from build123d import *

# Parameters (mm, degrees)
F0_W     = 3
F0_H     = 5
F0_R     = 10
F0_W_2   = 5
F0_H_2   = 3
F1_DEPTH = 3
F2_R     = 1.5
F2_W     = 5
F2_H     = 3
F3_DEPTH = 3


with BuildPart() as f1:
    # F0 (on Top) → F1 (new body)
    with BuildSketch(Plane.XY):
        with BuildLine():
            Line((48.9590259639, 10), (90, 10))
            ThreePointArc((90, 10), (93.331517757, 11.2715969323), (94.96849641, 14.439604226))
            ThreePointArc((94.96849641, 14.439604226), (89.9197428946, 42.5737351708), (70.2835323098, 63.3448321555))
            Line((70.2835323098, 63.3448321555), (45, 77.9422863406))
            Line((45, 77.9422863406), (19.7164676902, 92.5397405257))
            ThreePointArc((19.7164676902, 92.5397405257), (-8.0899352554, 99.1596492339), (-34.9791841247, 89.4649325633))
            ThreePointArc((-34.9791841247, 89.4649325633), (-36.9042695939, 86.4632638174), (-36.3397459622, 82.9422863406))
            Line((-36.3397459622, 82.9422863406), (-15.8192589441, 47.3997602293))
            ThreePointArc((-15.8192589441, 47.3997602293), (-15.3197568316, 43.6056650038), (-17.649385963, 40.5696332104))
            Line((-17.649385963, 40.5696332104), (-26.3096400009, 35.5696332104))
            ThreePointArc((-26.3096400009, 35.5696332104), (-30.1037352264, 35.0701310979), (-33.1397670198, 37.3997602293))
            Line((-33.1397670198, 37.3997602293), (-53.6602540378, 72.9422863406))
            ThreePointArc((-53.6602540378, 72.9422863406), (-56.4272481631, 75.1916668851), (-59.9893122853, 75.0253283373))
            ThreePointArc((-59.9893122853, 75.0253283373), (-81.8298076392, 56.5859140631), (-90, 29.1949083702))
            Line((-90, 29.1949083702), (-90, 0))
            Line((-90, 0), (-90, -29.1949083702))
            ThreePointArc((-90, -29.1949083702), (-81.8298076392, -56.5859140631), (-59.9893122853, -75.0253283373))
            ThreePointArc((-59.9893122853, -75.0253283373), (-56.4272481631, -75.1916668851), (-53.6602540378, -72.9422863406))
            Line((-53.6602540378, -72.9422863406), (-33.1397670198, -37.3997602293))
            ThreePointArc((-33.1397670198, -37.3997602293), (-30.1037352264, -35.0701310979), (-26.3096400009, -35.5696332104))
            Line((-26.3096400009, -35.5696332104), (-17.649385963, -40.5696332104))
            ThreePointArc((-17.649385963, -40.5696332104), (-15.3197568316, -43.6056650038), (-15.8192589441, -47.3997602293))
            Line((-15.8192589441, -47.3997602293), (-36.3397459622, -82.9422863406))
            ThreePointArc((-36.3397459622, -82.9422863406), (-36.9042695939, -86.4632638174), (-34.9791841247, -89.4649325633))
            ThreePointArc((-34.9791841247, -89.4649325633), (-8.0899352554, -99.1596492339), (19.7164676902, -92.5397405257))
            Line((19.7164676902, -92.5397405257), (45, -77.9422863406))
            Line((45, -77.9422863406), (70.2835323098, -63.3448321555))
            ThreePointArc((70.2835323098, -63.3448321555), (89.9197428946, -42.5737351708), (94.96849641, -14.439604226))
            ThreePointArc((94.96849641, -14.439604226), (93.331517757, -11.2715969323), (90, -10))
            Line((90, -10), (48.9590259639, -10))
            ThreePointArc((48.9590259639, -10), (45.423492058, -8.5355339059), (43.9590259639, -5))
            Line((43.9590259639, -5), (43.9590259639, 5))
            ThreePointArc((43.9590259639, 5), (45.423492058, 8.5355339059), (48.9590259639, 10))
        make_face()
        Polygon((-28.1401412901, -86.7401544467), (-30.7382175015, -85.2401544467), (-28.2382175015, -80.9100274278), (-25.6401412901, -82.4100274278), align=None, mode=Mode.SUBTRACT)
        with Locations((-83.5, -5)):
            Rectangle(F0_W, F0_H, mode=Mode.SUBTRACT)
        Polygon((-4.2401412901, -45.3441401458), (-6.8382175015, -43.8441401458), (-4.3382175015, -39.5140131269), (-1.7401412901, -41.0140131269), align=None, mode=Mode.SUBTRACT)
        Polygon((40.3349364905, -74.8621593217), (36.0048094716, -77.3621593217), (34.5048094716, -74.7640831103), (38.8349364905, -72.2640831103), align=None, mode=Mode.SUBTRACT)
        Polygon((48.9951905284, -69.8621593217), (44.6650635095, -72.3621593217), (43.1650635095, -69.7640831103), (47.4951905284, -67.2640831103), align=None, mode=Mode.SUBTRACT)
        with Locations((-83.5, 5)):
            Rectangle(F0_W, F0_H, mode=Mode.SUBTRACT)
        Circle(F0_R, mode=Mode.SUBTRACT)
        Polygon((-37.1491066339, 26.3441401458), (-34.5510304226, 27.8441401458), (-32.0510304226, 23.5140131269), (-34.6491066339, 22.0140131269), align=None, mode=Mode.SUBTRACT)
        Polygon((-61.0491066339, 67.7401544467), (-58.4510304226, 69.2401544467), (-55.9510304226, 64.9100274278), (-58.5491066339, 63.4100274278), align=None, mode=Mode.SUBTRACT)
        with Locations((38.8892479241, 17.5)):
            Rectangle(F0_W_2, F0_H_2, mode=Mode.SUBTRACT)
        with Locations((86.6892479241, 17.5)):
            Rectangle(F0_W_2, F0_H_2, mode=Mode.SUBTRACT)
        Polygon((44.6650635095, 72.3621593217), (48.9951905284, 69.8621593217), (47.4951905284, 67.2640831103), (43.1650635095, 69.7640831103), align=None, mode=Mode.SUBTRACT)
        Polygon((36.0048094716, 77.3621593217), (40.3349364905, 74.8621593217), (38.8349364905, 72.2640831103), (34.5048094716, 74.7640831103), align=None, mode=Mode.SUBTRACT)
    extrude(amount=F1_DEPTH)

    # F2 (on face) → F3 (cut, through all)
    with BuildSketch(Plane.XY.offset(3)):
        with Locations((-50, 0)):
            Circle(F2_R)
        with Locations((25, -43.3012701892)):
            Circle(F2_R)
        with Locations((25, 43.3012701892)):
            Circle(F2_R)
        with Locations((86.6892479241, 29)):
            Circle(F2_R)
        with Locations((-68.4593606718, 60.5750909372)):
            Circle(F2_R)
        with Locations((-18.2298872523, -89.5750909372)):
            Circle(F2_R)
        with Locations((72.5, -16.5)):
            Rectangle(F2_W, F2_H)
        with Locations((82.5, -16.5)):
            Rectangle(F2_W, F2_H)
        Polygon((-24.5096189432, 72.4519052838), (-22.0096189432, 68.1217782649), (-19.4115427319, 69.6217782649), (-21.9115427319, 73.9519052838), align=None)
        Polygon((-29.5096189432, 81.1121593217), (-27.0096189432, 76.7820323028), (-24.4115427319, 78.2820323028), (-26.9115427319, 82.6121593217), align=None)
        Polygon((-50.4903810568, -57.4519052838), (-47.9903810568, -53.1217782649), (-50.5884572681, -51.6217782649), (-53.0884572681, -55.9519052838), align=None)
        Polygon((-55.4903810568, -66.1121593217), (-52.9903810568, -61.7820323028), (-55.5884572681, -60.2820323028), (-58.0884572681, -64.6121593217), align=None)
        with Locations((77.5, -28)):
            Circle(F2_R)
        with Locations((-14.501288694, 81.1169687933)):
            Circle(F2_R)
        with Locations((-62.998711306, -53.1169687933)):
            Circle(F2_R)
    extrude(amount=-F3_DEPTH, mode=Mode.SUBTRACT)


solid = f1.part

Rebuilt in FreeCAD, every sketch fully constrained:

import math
import FreeCAD as App
import Part
import Sketcher

V = App.Vector
Q = App.Units.Quantity

doc = App.newDocument("Part")
params = doc.addObject("Spreadsheet::Sheet", "Params")
for row, (alias, value) in enumerate([
    ("sketch1_diameter", "20 mm"),
    ("sketch1_radius", "5 mm"),
    ("sketch1_radius2", "50 mm"),
    ("sketch1_width", "3 mm"),
    ("sketch1_width2", "5 mm"),
    ("pad1_length", "3 mm"),
    ("sketch2_diameter", "3 mm"),
    ("sketch2_width", "5 mm"),
    ("sketch2_height", "3 mm"),
    ("sketch2_length", "5 mm"),
    ("sketch2_length2", "3 mm"),
], start=1):
    params.set(f"A{row}", alias)
    params.set(f"B{row}", "=" + value)
    params.setAlias(f"B{row}", alias)

body = doc.addObject("PartDesign::Body", "Body")

# Sketch on XY plane
sketch1 = body.newObject("Sketcher::SketchObject", "Sketch")
sketch1.AttachmentSupport = (doc.getObject("XY_Plane"), [""])
sketch1.MapMode = "FlatFace"
sketch1.addGeometry([
    Part.LineSegment(V(49, 10, 0), V(90, 10, 0)),  # 0
    Part.ArcOfCircle(Part.Circle(V(90, 15, 0), V(0, 0, 1), 5), math.radians(-90), math.radians(-6)),  # 1
    Part.ArcOfCircle(Part.Circle(V(45.3, 20, 0), V(0, 0, 1), 50), math.radians(-6), math.radians(60)),  # 2
    Part.LineSegment(V(70.3, 63.3, 0), V(19.7, 92.5, 0)),  # 3
    Part.ArcOfCircle(Part.Circle(V(-5.3, 49.2, 0), V(0, 0, 1), 50), math.radians(60), math.radians(126)),  # 4
    Part.ArcOfCircle(Part.Circle(V(-32, 85.4, 0), V(0, 0, 1), 5), math.radians(126), math.radians(210)),  # 5
    Part.LineSegment(V(-36.3, 82.9, 0), V(-15.8, 47.4, 0)),  # 6
    Part.ArcOfCircle(Part.Circle(V(-20.1, 44.9, 0), V(0, 0, 1), 5), math.radians(-60), math.radians(30)),  # 7
    Part.LineSegment(V(-17.6, 40.6, 0), V(-26.3, 35.6, 0)),  # 8
    Part.ArcOfCircle(Part.Circle(V(-28.8, 39.9, 0), V(0, 0, 1), 5), math.radians(-150), math.radians(-60)),  # 9
    Part.LineSegment(V(-33.1, 37.4, 0), V(-53.7, 72.9, 0)),  # 10
    Part.ArcOfCircle(Part.Circle(V(-58, 70.4, 0), V(0, 0, 1), 5), math.radians(30), math.radians(114)),  # 11
    Part.ArcOfCircle(Part.Circle(V(-40, 29.2, 0), V(0, 0, 1), 50), math.radians(114), math.radians(180)),  # 12
    Part.LineSegment(V(-90, 29.2, 0), V(-90, -29.2, 0)),  # 13
    Part.ArcOfCircle(Part.Circle(V(-40, -29.2, 0), V(0, 0, 1), 50), math.radians(180), math.radians(246)),  # 14
    Part.ArcOfCircle(Part.Circle(V(-58, -70.4, 0), V(0, 0, 1), 5), math.radians(-114), math.radians(-30)),  # 15
    Part.LineSegment(V(-53.7, -72.9, 0), V(-33.1, -37.4, 0)),  # 16
    Part.ArcOfCircle(Part.Circle(V(-28.8, -39.9, 0), V(0, 0, 1), 5), math.radians(60), math.radians(150)),  # 17
    Part.LineSegment(V(-26.3, -35.6, 0), V(-17.6, -40.6, 0)),  # 18
    Part.ArcOfCircle(Part.Circle(V(-20.1, -44.9, 0), V(0, 0, 1), 5), math.radians(-30), math.radians(60)),  # 19
    Part.LineSegment(V(-15.8, -47.4, 0), V(-36.3, -82.9, 0)),  # 20
    Part.ArcOfCircle(Part.Circle(V(-32, -85.4, 0), V(0, 0, 1), 5), math.radians(150), math.radians(234)),  # 21
    Part.ArcOfCircle(Part.Circle(V(-5.3, -49.2, 0), V(0, 0, 1), 50), math.radians(-126), math.radians(-60)),  # 22
    Part.LineSegment(V(19.7, -92.5, 0), V(70.3, -63.3, 0)),  # 23
    Part.ArcOfCircle(Part.Circle(V(45.3, -20, 0), V(0, 0, 1), 50), math.radians(-60), math.radians(6)),  # 24
    Part.ArcOfCircle(Part.Circle(V(90, -15, 0), V(0, 0, 1), 5), math.radians(6), math.radians(90)),  # 25
    Part.LineSegment(V(90, -10, 0), V(49, -10, 0)),  # 26
    Part.ArcOfCircle(Part.Circle(V(49, -5, 0), V(0, 0, 1), 5), math.radians(180), math.radians(270)),  # 27
    Part.LineSegment(V(44, -5, 0), V(44, 5, 0)),  # 28
    Part.ArcOfCircle(Part.Circle(V(49, 5, 0), V(0, 0, 1), 5), math.radians(90), math.radians(180)),  # 29
    Part.LineSegment(V(-25.6, -82.4, 0), V(-28.1, -86.7, 0)),  # 30
    Part.LineSegment(V(-28.1, -86.7, 0), V(-30.7, -85.2, 0)),  # 31
    Part.LineSegment(V(-30.7, -85.2, 0), V(-28.2, -80.9, 0)),  # 32
    Part.LineSegment(V(-28.2, -80.9, 0), V(-25.6, -82.4, 0)),  # 33
    Part.LineSegment(V(-82, -7.5, 0), V(-85, -7.5, 0)),  # 34
    Part.LineSegment(V(-85, -7.5, 0), V(-85, -2.5, 0)),  # 35
    Part.LineSegment(V(-85, -2.5, 0), V(-82, -2.5, 0)),  # 36
    Part.LineSegment(V(-82, -2.5, 0), V(-82, -7.5, 0)),  # 37
    Part.LineSegment(V(-1.7, -41, 0), V(-4.2, -45.3, 0)),  # 38
    Part.LineSegment(V(-4.2, -45.3, 0), V(-6.8, -43.8, 0)),  # 39
    Part.LineSegment(V(-6.8, -43.8, 0), V(-4.3, -39.5, 0)),  # 40
    Part.LineSegment(V(-4.3, -39.5, 0), V(-1.7, -41, 0)),  # 41
    Part.LineSegment(V(38.8, -72.3, 0), V(40.3, -74.9, 0)),  # 42
    Part.LineSegment(V(40.3, -74.9, 0), V(36, -77.4, 0)),  # 43
    Part.LineSegment(V(36, -77.4, 0), V(34.5, -74.8, 0)),  # 44
    Part.LineSegment(V(34.5, -74.8, 0), V(38.8, -72.3, 0)),  # 45
    Part.LineSegment(V(47.5, -67.3, 0), V(49, -69.9, 0)),  # 46
    Part.LineSegment(V(49, -69.9, 0), V(44.7, -72.4, 0)),  # 47
    Part.LineSegment(V(44.7, -72.4, 0), V(43.2, -69.8, 0)),  # 48
    Part.LineSegment(V(43.2, -69.8, 0), V(47.5, -67.3, 0)),  # 49
    Part.LineSegment(V(-82, 2.5, 0), V(-85, 2.5, 0)),  # 50
    Part.LineSegment(V(-85, 2.5, 0), V(-85, 7.5, 0)),  # 51
    Part.LineSegment(V(-85, 7.5, 0), V(-82, 7.5, 0)),  # 52
    Part.LineSegment(V(-82, 7.5, 0), V(-82, 2.5, 0)),  # 53
    Part.Circle(V(0, 0, 0), V(0, 0, 1), 10),  # 54
    Part.LineSegment(V(-34.6, 22, 0), V(-37.1, 26.3, 0)),  # 55
    Part.LineSegment(V(-37.1, 26.3, 0), V(-34.6, 27.8, 0)),  # 56
    Part.LineSegment(V(-34.6, 27.8, 0), V(-32.1, 23.5, 0)),  # 57
    Part.LineSegment(V(-32.1, 23.5, 0), V(-34.6, 22, 0)),  # 58
    Part.LineSegment(V(-58.5, 63.4, 0), V(-61, 67.7, 0)),  # 59
    Part.LineSegment(V(-61, 67.7, 0), V(-58.5, 69.2, 0)),  # 60
    Part.LineSegment(V(-58.5, 69.2, 0), V(-56, 64.9, 0)),  # 61
    Part.LineSegment(V(-56, 64.9, 0), V(-58.5, 63.4, 0)),  # 62
    Part.LineSegment(V(41.4, 16, 0), V(36.4, 16, 0)),  # 63
    Part.LineSegment(V(36.4, 16, 0), V(36.4, 19, 0)),  # 64
    Part.LineSegment(V(36.4, 19, 0), V(41.4, 19, 0)),  # 65
    Part.LineSegment(V(41.4, 19, 0), V(41.4, 16, 0)),  # 66
    Part.LineSegment(V(89.2, 16, 0), V(84.2, 16, 0)),  # 67
    Part.LineSegment(V(84.2, 16, 0), V(84.2, 19, 0)),  # 68
    Part.LineSegment(V(84.2, 19, 0), V(89.2, 19, 0)),  # 69
    Part.LineSegment(V(89.2, 19, 0), V(89.2, 16, 0)),  # 70
    Part.LineSegment(V(34.5, 74.8, 0), V(36, 77.4, 0)),  # 71
    Part.LineSegment(V(36, 77.4, 0), V(40.3, 74.9, 0)),  # 72
    Part.LineSegment(V(40.3, 74.9, 0), V(38.8, 72.3, 0)),  # 73
    Part.LineSegment(V(38.8, 72.3, 0), V(34.5, 74.8, 0)),  # 74
    Part.LineSegment(V(43.2, 69.8, 0), V(44.7, 72.4, 0)),  # 75
    Part.LineSegment(V(44.7, 72.4, 0), V(49, 69.9, 0)),  # 76
    Part.LineSegment(V(49, 69.9, 0), V(47.5, 67.3, 0)),  # 77
    Part.LineSegment(V(47.5, 67.3, 0), V(43.2, 69.8, 0)),  # 78
], False)
sketch1.addConstraint([
    Sketcher.Constraint("Tangent", 0, 2, 1, 1),
    Sketcher.Constraint("Tangent", 1, 2, 2, 1),
    Sketcher.Constraint("Tangent", 2, 2, 3, 1),
    Sketcher.Constraint("Tangent", 3, 2, 4, 1),
    Sketcher.Constraint("Tangent", 4, 2, 5, 1),
    Sketcher.Constraint("Tangent", 5, 2, 6, 1),
    Sketcher.Constraint("Tangent", 6, 2, 7, 2),
    Sketcher.Constraint("Tangent", 7, 1, 8, 1),
    Sketcher.Constraint("Tangent", 8, 2, 9, 2),
    Sketcher.Constraint("Tangent", 9, 1, 10, 1),
    Sketcher.Constraint("Tangent", 10, 2, 11, 1),
    Sketcher.Constraint("Tangent", 11, 2, 12, 1),
    Sketcher.Constraint("Tangent", 12, 2, 13, 1),
    Sketcher.Constraint("Tangent", 13, 2, 14, 1),
    Sketcher.Constraint("Tangent", 14, 2, 15, 1),
    Sketcher.Constraint("Tangent", 15, 2, 16, 1),
    Sketcher.Constraint("Tangent", 16, 2, 17, 2),
    Sketcher.Constraint("Tangent", 17, 1, 18, 1),
    Sketcher.Constraint("Tangent", 18, 2, 19, 2),
    Sketcher.Constraint("Tangent", 19, 1, 20, 1),
    Sketcher.Constraint("Tangent", 20, 2, 21, 1),
    Sketcher.Constraint("Tangent", 21, 2, 22, 1),
    Sketcher.Constraint("Tangent", 22, 2, 23, 1),
    Sketcher.Constraint("Tangent", 23, 2, 24, 1),
    Sketcher.Constraint("Tangent", 24, 2, 25, 1),
    Sketcher.Constraint("Tangent", 25, 2, 26, 1),
    Sketcher.Constraint("Tangent", 26, 2, 27, 2),
    Sketcher.Constraint("Tangent", 27, 1, 28, 1),
    Sketcher.Constraint("Tangent", 28, 2, 29, 2),
    Sketcher.Constraint("Tangent", 29, 1, 0, 1),
    Sketcher.Constraint("Coincident", 30, 2, 31, 1),
    Sketcher.Constraint("Coincident", 31, 2, 32, 1),
    Sketcher.Constraint("Coincident", 32, 2, 33, 1),
    Sketcher.Constraint("Coincident", 33, 2, 30, 1),
    Sketcher.Constraint("Coincident", 34, 2, 35, 1),
    Sketcher.Constraint("Coincident", 35, 2, 36, 1),
    Sketcher.Constraint("Coincident", 36, 2, 37, 1),
    Sketcher.Constraint("Coincident", 37, 2, 34, 1),
    Sketcher.Constraint("Coincident", 38, 2, 39, 1),
    Sketcher.Constraint("Coincident", 39, 2, 40, 1),
    Sketcher.Constraint("Coincident", 40, 2, 41, 1),
    Sketcher.Constraint("Coincident", 41, 2, 38, 1),
    Sketcher.Constraint("Coincident", 42, 2, 43, 1),
    Sketcher.Constraint("Coincident", 43, 2, 44, 1),
    Sketcher.Constraint("Coincident", 44, 2, 45, 1),
    Sketcher.Constraint("Coincident", 45, 2, 42, 1),
    Sketcher.Constraint("Coincident", 46, 2, 47, 1),
    Sketcher.Constraint("Coincident", 47, 2, 48, 1),
    Sketcher.Constraint("Coincident", 48, 2, 49, 1),
    Sketcher.Constraint("Coincident", 49, 2, 46, 1),
    Sketcher.Constraint("Coincident", 50, 2, 51, 1),
    Sketcher.Constraint("Coincident", 51, 2, 52, 1),
    Sketcher.Constraint("Coincident", 52, 2, 53, 1),
    Sketcher.Constraint("Coincident", 53, 2, 50, 1),
    Sketcher.Constraint("Coincident", 55, 2, 56, 1),
    Sketcher.Constraint("Coincident", 56, 2, 57, 1),
    Sketcher.Constraint("Coincident", 57, 2, 58, 1),
    Sketcher.Constraint("Coincident", 58, 2, 55, 1),
    Sketcher.Constraint("Coincident", 59, 2, 60, 1),
    Sketcher.Constraint("Coincident", 60, 2, 61, 1),
    Sketcher.Constraint("Coincident", 61, 2, 62, 1),
    Sketcher.Constraint("Coincident", 62, 2, 59, 1),
    Sketcher.Constraint("Coincident", 63, 2, 64, 1),
    Sketcher.Constraint("Coincident", 64, 2, 65, 1),
    Sketcher.Constraint("Coincident", 65, 2, 66, 1),
    Sketcher.Constraint("Coincident", 66, 2, 63, 1),
    Sketcher.Constraint("Coincident", 67, 2, 68, 1),
    Sketcher.Constraint("Coincident", 68, 2, 69, 1),
    Sketcher.Constraint("Coincident", 69, 2, 70, 1),
    Sketcher.Constraint("Coincident", 70, 2, 67, 1),
    Sketcher.Constraint("Coincident", 71, 2, 72, 1),
    Sketcher.Constraint("Coincident", 72, 2, 73, 1),
    Sketcher.Constraint("Coincident", 73, 2, 74, 1),
    Sketcher.Constraint("Coincident", 74, 2, 71, 1),
    Sketcher.Constraint("Coincident", 75, 2, 76, 1),
    Sketcher.Constraint("Coincident", 76, 2, 77, 1),
    Sketcher.Constraint("Coincident", 77, 2, 78, 1),
    Sketcher.Constraint("Coincident", 78, 2, 75, 1),
    Sketcher.Constraint("Horizontal", 0),
    Sketcher.Constraint("Vertical", 13),
    Sketcher.Constraint("Horizontal", 26),
    Sketcher.Constraint("Vertical", 28),
    Sketcher.Constraint("Horizontal", 34),
    Sketcher.Constraint("Vertical", 35),
    Sketcher.Constraint("Horizontal", 36),
    Sketcher.Constraint("Vertical", 37),
    Sketcher.Constraint("Horizontal", 50),
    Sketcher.Constraint("Vertical", 51),
    Sketcher.Constraint("Horizontal", 52),
    Sketcher.Constraint("Vertical", 53),
    Sketcher.Constraint("Horizontal", 63),
    Sketcher.Constraint("Vertical", 64),
    Sketcher.Constraint("Horizontal", 65),
    Sketcher.Constraint("Vertical", 66),
    Sketcher.Constraint("Horizontal", 67),
    Sketcher.Constraint("Vertical", 68),
    Sketcher.Constraint("Horizontal", 69),
    Sketcher.Constraint("Vertical", 70),
    Sketcher.Constraint("Coincident", 54, 3, -1, 1),
    Sketcher.Constraint("Equal", 2, 4),
    Sketcher.Constraint("Equal", 1, 5),
    Sketcher.Constraint("Equal", 5, 7),
    Sketcher.Constraint("Equal", 7, 9),
    Sketcher.Constraint("Equal", 9, 11),
    Sketcher.Constraint("Equal", 4, 12),
    Sketcher.Constraint("Equal", 12, 14),
    Sketcher.Constraint("Equal", 11, 15),
    Sketcher.Constraint("Equal", 15, 17),
    Sketcher.Constraint("Equal", 17, 19),
    Sketcher.Constraint("Equal", 19, 21),
    Sketcher.Constraint("Equal", 14, 22),
    Sketcher.Constraint("Equal", 22, 24),
    Sketcher.Constraint("Equal", 21, 25),
    Sketcher.Constraint("Equal", 25, 27),
    Sketcher.Constraint("Equal", 27, 29),
    Sketcher.Constraint("Symmetric", 11, 3, 15, 3, -1),
    Sketcher.Constraint("Symmetric", 9, 3, 17, 3, -1),
    Sketcher.Constraint("Symmetric", 7, 3, 19, 3, -1),
    Sketcher.Constraint("Symmetric", 5, 3, 21, 3, -1),
    Sketcher.Constraint("Symmetric", 2, 3, 24, 3, -1),
    Sketcher.Constraint("Symmetric", 35, 2, 50, 2, -1),
    Sketcher.Constraint("Symmetric", 37, 2, 52, 2, -1),
    Sketcher.Constraint("Symmetric", 43, 2, 71, 2, -1),
    Sketcher.Constraint("Symmetric", 42, 2, 72, 2, -1),
    Sketcher.Constraint("Symmetric", 45, 2, 73, 2, -1),
    Sketcher.Constraint("Symmetric", 44, 2, 74, 2, -1),
    Sketcher.Constraint("Symmetric", 47, 2, 75, 2, -1),
    Sketcher.Constraint("Symmetric", 46, 2, 76, 2, -1),
    Sketcher.Constraint("Symmetric", 49, 2, 77, 2, -1),
    Sketcher.Constraint("Symmetric", 48, 2, 78, 2, -1),
    Sketcher.Constraint("Perpendicular", 6, 8),
    Sketcher.Constraint("Perpendicular", 8, 10),
    Sketcher.Constraint("Perpendicular", 3, 16),
    Sketcher.Constraint("Perpendicular", 10, 23),
    Sketcher.Constraint("Parallel", 20, 30),
    Sketcher.Constraint("Perpendicular", 30, 31),
    Sketcher.Constraint("Perpendicular", 31, 32),
    Sketcher.Constraint("Perpendicular", 32, 33),
    Sketcher.Constraint("Perpendicular", 33, 38),
    Sketcher.Constraint("Perpendicular", 38, 39),
    Sketcher.Constraint("Perpendicular", 39, 40),
    Sketcher.Constraint("Perpendicular", 40, 41),
    Sketcher.Constraint("Perpendicular", 23, 42),
    Sketcher.Constraint("Perpendicular", 42, 43),
    Sketcher.Constraint("Perpendicular", 43, 44),
    Sketcher.Constraint("Perpendicular", 44, 45),
    Sketcher.Constraint("Perpendicular", 45, 46),
    Sketcher.Constraint("Perpendicular", 46, 47),
    Sketcher.Constraint("Perpendicular", 47, 48),
    Sketcher.Constraint("Perpendicular", 48, 49),
    Sketcher.Constraint("Perpendicular", 49, 55),
    Sketcher.Constraint("Perpendicular", 55, 56),
    Sketcher.Constraint("Perpendicular", 56, 57),
    Sketcher.Constraint("Perpendicular", 57, 58),
    Sketcher.Constraint("Perpendicular", 58, 59),
    Sketcher.Constraint("Perpendicular", 59, 60),
    Sketcher.Constraint("Perpendicular", 60, 61),
    Sketcher.Constraint("Perpendicular", 61, 62),
    Sketcher.Constraint("Horizontal", 66, 2, 67, 2),
    Sketcher.Constraint("Horizontal", 65, 2, 68, 2),
    Sketcher.Constraint("Vertical", 1, 3, 25, 3),
    Sketcher.Constraint("Equal", 65, 67),
    Sketcher.Constraint("Equal", 69, 35),
    Sketcher.Constraint("Equal", 52, 64),
    Sketcher.Constraint("Equal", 6, 10),
    Sketcher.Constraint("Equal", 32, 38),
    Sketcher.Constraint("Equal", 33, 39),
    Sketcher.Constraint("Equal", 41, 42),
    Sketcher.Constraint("Equal", 40, 43),
    Sketcher.Constraint("Equal", 44, 46),
    Sketcher.Constraint("Equal", 45, 47),
    Sketcher.Constraint("Equal", 49, 55),
    Sketcher.Constraint("Equal", 48, 56),
    Sketcher.Constraint("Equal", 57, 59),
    Sketcher.Constraint("Equal", 58, 60),
    Sketcher.Constraint("Diameter", 54, Q("20 mm")),
    Sketcher.Constraint("Radius", 1, Q("5 mm")),
    Sketcher.Constraint("Radius", 2, Q("50 mm")),
    Sketcher.Constraint("DistanceX", 34, 2, 34, 1, Q("3 mm")),
    Sketcher.Constraint("DistanceX", 63, 2, 63, 1, Q("5 mm")),
    Sketcher.Constraint("DistanceY", 28, 1, 28, 2, Q("10 mm")),
    Sketcher.Constraint("Angle", 3, Q("150 deg")),
    Sketcher.Constraint("Distance", 8, Q("10 mm")),
    Sketcher.Constraint("Distance", 30, Q("5 mm")),
    Sketcher.Constraint("Distance", 31, Q("3 mm")),
    Sketcher.Constraint("DistanceX", -1, 1, 1, 3, Q("90 mm")),
    Sketcher.Constraint("DistanceX", 12, 3, -1, 1, Q("40 mm")),
    Sketcher.Constraint("DistanceX", 34, 2, -1, 1, Q("85 mm")),
    Sketcher.Constraint("DistanceY", -1, 1, 63, 2, Q("16 mm")),
    Sketcher.Constraint("DistanceY", 34, 2, -1, 1, Q("7.5 mm")),
    Sketcher.Constraint("DistanceX", 0, 1, 0, 2, Q("41.040974 mm")),
    Sketcher.Constraint("DistanceY", 13, 2, 13, 1, Q("58.389817 mm")),
    Sketcher.Constraint("DistanceY", -1, 1, 2, 3, Q("20.043562 mm")),
    Sketcher.Constraint("DistanceY", -1, 1, 4, 3, Q("49.23847 mm")),
    Sketcher.Constraint("DistanceY", -1, 1, 7, 3, Q("44.89976 mm")),
    Sketcher.Constraint("DistanceX", 30, 2, -1, 1, Q("28.140141 mm")),
    Sketcher.Constraint("DistanceX", 38, 2, -1, 1, Q("4.240141 mm")),
    Sketcher.Constraint("DistanceY", 38, 2, -1, 1, Q("45.34414 mm")),
    Sketcher.Constraint("DistanceY", 42, 2, -1, 1, Q("74.862159 mm")),
    Sketcher.Constraint("DistanceX", -1, 1, 43, 2, Q("36.004809 mm")),
    Sketcher.Constraint("DistanceX", -1, 1, 46, 2, Q("48.995191 mm")),
    Sketcher.Constraint("DistanceY", 46, 2, -1, 1, Q("69.862159 mm")),
    Sketcher.Constraint("DistanceY", -1, 1, 55, 2, Q("26.34414 mm")),
    Sketcher.Constraint("DistanceX", 56, 2, -1, 1, Q("34.55103 mm")),
    Sketcher.Constraint("DistanceX", 60, 2, -1, 1, Q("58.45103 mm")),
    Sketcher.Constraint("DistanceY", 30, 2, -1, 1, Q("86.740154 mm")),
    Sketcher.Constraint("DistanceY", -1, 1, 59, 2, Q("67.740154 mm")),
    Sketcher.Constraint("DistanceX", -1, 1, 63, 2, Q("36.389248 mm")),
    Sketcher.Constraint("DistanceX", -1, 1, 67, 2, Q("84.189248 mm")),
])
sketch1.setExpression("Constraints[175]", "Params.sketch1_diameter")
sketch1.setExpression("Constraints[176]", "Params.sketch1_radius")
sketch1.setExpression("Constraints[177]", "Params.sketch1_radius2")
sketch1.setExpression("Constraints[178]", "Params.sketch1_width")
sketch1.setExpression("Constraints[179]", "Params.sketch1_width2")
pad1 = body.newObject("PartDesign::Pad", "Pad")
pad1.Profile = sketch1
pad1.setExpression("Length", "Params.pad1_length")

# Sketch on XY plane
sketch2 = body.newObject("Sketcher::SketchObject", "Sketch001")
sketch2.AttachmentSupport = (doc.getObject("XY_Plane"), [""])
sketch2.MapMode = "FlatFace"
sketch2.AttachmentOffset = App.Placement(V(0, 0, 3), App.Rotation())
sketch2.addGeometry([
    Part.Circle(V(-50, 0, 0), V(0, 0, 1), 1.5),  # 0
    Part.Circle(V(25, -43.3, 0), V(0, 0, 1), 1.5),  # 1
    Part.Circle(V(25, 43.3, 0), V(0, 0, 1), 1.5),  # 2
    Part.Circle(V(86.7, 29, 0), V(0, 0, 1), 1.5),  # 3
    Part.Circle(V(-68.5, 60.6, 0), V(0, 0, 1), 1.5),  # 4
    Part.Circle(V(-18.2, -89.6, 0), V(0, 0, 1), 1.5),  # 5
    Part.LineSegment(V(70, -15, 0), V(70, -18, 0)),  # 6
    Part.LineSegment(V(70, -18, 0), V(75, -18, 0)),  # 7
    Part.LineSegment(V(75, -18, 0), V(75, -15, 0)),  # 8
    Part.LineSegment(V(75, -15, 0), V(70, -15, 0)),  # 9
    Part.LineSegment(V(80, -15, 0), V(80, -18, 0)),  # 10
    Part.LineSegment(V(80, -18, 0), V(85, -18, 0)),  # 11
    Part.LineSegment(V(85, -18, 0), V(85, -15, 0)),  # 12
    Part.LineSegment(V(85, -15, 0), V(80, -15, 0)),  # 13
    Part.LineSegment(V(-24.5, 72.5, 0), V(-22, 68.1, 0)),  # 14
    Part.LineSegment(V(-22, 68.1, 0), V(-19.4, 69.6, 0)),  # 15
    Part.LineSegment(V(-19.4, 69.6, 0), V(-21.9, 74, 0)),  # 16
    Part.LineSegment(V(-21.9, 74, 0), V(-24.5, 72.5, 0)),  # 17
    Part.LineSegment(V(-29.5, 81.1, 0), V(-27, 76.8, 0)),  # 18
    Part.LineSegment(V(-27, 76.8, 0), V(-24.4, 78.3, 0)),  # 19
    Part.LineSegment(V(-24.4, 78.3, 0), V(-26.9, 82.6, 0)),  # 20
    Part.LineSegment(V(-26.9, 82.6, 0), V(-29.5, 81.1, 0)),  # 21
    Part.LineSegment(V(-50.5, -57.5, 0), V(-48, -53.1, 0)),  # 22
    Part.LineSegment(V(-48, -53.1, 0), V(-50.6, -51.6, 0)),  # 23
    Part.LineSegment(V(-50.6, -51.6, 0), V(-53.1, -56, 0)),  # 24
    Part.LineSegment(V(-53.1, -56, 0), V(-50.5, -57.5, 0)),  # 25
    Part.LineSegment(V(-55.5, -66.1, 0), V(-53, -61.8, 0)),  # 26
    Part.LineSegment(V(-53, -61.8, 0), V(-55.6, -60.3, 0)),  # 27
    Part.LineSegment(V(-55.6, -60.3, 0), V(-58.1, -64.6, 0)),  # 28
    Part.LineSegment(V(-58.1, -64.6, 0), V(-55.5, -66.1, 0)),  # 29
    Part.Circle(V(77.5, -28, 0), V(0, 0, 1), 1.5),  # 30
    Part.Circle(V(-14.5, 81.1, 0), V(0, 0, 1), 1.5),  # 31
    Part.Circle(V(-63, -53.1, 0), V(0, 0, 1), 1.5),  # 32
], False)
sketch2.addConstraint([
    Sketcher.Constraint("Coincident", 6, 2, 7, 1),
    Sketcher.Constraint("Coincident", 7, 2, 8, 1),
    Sketcher.Constraint("Coincident", 8, 2, 9, 1),
    Sketcher.Constraint("Coincident", 9, 2, 6, 1),
    Sketcher.Constraint("Coincident", 10, 2, 11, 1),
    Sketcher.Constraint("Coincident", 11, 2, 12, 1),
    Sketcher.Constraint("Coincident", 12, 2, 13, 1),
    Sketcher.Constraint("Coincident", 13, 2, 10, 1),
    Sketcher.Constraint("Coincident", 14, 2, 15, 1),
    Sketcher.Constraint("Coincident", 15, 2, 16, 1),
    Sketcher.Constraint("Coincident", 16, 2, 17, 1),
    Sketcher.Constraint("Coincident", 17, 2, 14, 1),
    Sketcher.Constraint("Coincident", 18, 2, 19, 1),
    Sketcher.Constraint("Coincident", 19, 2, 20, 1),
    Sketcher.Constraint("Coincident", 20, 2, 21, 1),
    Sketcher.Constraint("Coincident", 21, 2, 18, 1),
    Sketcher.Constraint("Coincident", 22, 2, 23, 1),
    Sketcher.Constraint("Coincident", 23, 2, 24, 1),
    Sketcher.Constraint("Coincident", 24, 2, 25, 1),
    Sketcher.Constraint("Coincident", 25, 2, 22, 1),
    Sketcher.Constraint("Coincident", 26, 2, 27, 1),
    Sketcher.Constraint("Coincident", 27, 2, 28, 1),
    Sketcher.Constraint("Coincident", 28, 2, 29, 1),
    Sketcher.Constraint("Coincident", 29, 2, 26, 1),
    Sketcher.Constraint("Vertical", 6),
    Sketcher.Constraint("Horizontal", 7),
    Sketcher.Constraint("Vertical", 8),
    Sketcher.Constraint("Horizontal", 9),
    Sketcher.Constraint("Vertical", 10),
    Sketcher.Constraint("Horizontal", 11),
    Sketcher.Constraint("Vertical", 12),
    Sketcher.Constraint("Horizontal", 13),
    Sketcher.Constraint("Equal", 0, 1),
    Sketcher.Constraint("Equal", 1, 2),
    Sketcher.Constraint("Equal", 2, 3),
    Sketcher.Constraint("Equal", 3, 4),
    Sketcher.Constraint("Equal", 4, 5),
    Sketcher.Constraint("Equal", 5, 30),
    Sketcher.Constraint("Equal", 30, 31),
    Sketcher.Constraint("Equal", 31, 32),
    Sketcher.Constraint("Symmetric", 1, 3, 2, 3, -1),
    Sketcher.Constraint("PointOnObject", 0, 3, -1),
    Sketcher.Constraint("Perpendicular", 14, 15),
    Sketcher.Constraint("Perpendicular", 15, 16),
    Sketcher.Constraint("Perpendicular", 16, 17),
    Sketcher.Constraint("Perpendicular", 17, 18),
    Sketcher.Constraint("Perpendicular", 18, 19),
    Sketcher.Constraint("Perpendicular", 19, 20),
    Sketcher.Constraint("Perpendicular", 20, 21),
    Sketcher.Constraint("Perpendicular", 22, 23),
    Sketcher.Constraint("Perpendicular", 23, 24),
    Sketcher.Constraint("Perpendicular", 24, 25),
    Sketcher.Constraint("Perpendicular", 25, 26),
    Sketcher.Constraint("Perpendicular", 26, 27),
    Sketcher.Constraint("Perpendicular", 27, 28),
    Sketcher.Constraint("Perpendicular", 28, 29),
    Sketcher.Constraint("Horizontal", 7, 2, 10, 2),
    Sketcher.Constraint("Horizontal", 9, 2, 12, 2),
    Sketcher.Constraint("Equal", 9, 11),
    Sketcher.Constraint("Equal", 16, 18),
    Sketcher.Constraint("Equal", 17, 19),
    Sketcher.Constraint("Equal", 20, 22),
    Sketcher.Constraint("Equal", 21, 23),
    Sketcher.Constraint("Equal", 24, 26),
    Sketcher.Constraint("Equal", 25, 27),
    Sketcher.Constraint("Diameter", 0, Q("3 mm")),
    Sketcher.Constraint("DistanceX", 7, 1, 7, 2, Q("5 mm")),
    Sketcher.Constraint("DistanceY", 6, 2, 6, 1, Q("3 mm")),
    Sketcher.Constraint("Angle", 14, Q("-60 deg")),
    Sketcher.Constraint("Angle", 22, Q("60 deg")),
    Sketcher.Constraint("Distance", 14, Q("5 mm")),
    Sketcher.Constraint("Distance", 15, Q("3 mm")),
    Sketcher.Constraint("DistanceX", 0, 3, -1, 1, Q("50 mm")),
    Sketcher.Constraint("DistanceX", -1, 1, 1, 3, Q("25 mm")),
    Sketcher.Constraint("DistanceY", -1, 1, 3, 3, Q("29 mm")),
    Sketcher.Constraint("DistanceY", 30, 3, -1, 1, Q("28 mm")),
    Sketcher.Constraint("DistanceX", -1, 1, 6, 2, Q("70 mm")),
    Sketcher.Constraint("DistanceY", 6, 2, -1, 1, Q("18 mm")),
    Sketcher.Constraint("DistanceX", -1, 1, 10, 2, Q("80 mm")),
    Sketcher.Constraint("DistanceX", 18, 2, 14, 2, Q("5 mm")),
    Sketcher.Constraint("DistanceX", 26, 2, 22, 2, Q("5 mm")),
    Sketcher.Constraint("DistanceX", -1, 1, 30, 3, Q("77.5 mm")),
    Sketcher.Constraint("DistanceY", 2, 3, 31, 3, Q("37.815699 mm")),
    Sketcher.Constraint("DistanceY", 32, 3, 1, 3, Q("9.815699 mm")),
    Sketcher.Constraint("DistanceY", 1, 3, -1, 1, Q("43.30127 mm")),
    Sketcher.Constraint("DistanceX", 4, 3, -1, 1, Q("68.459361 mm")),
    Sketcher.Constraint("DistanceY", -1, 1, 4, 3, Q("60.575091 mm")),
    Sketcher.Constraint("DistanceY", 5, 3, -1, 1, Q("89.575091 mm")),
    Sketcher.Constraint("DistanceX", 31, 3, -1, 1, Q("14.501289 mm")),
    Sketcher.Constraint("DistanceX", 32, 3, -1, 1, Q("62.998711 mm")),
    Sketcher.Constraint("DistanceX", 14, 2, -1, 1, Q("22.009619 mm")),
    Sketcher.Constraint("DistanceY", -1, 1, 14, 2, Q("68.121778 mm")),
    Sketcher.Constraint("DistanceY", -1, 1, 20, 2, Q("82.612159 mm")),
    Sketcher.Constraint("DistanceX", 22, 2, -1, 1, Q("47.990381 mm")),
    Sketcher.Constraint("DistanceY", 22, 2, -1, 1, Q("53.121778 mm")),
    Sketcher.Constraint("DistanceY", 28, 2, -1, 1, Q("64.612159 mm")),
    Sketcher.Constraint("DistanceX", 4, 3, 3, 3, Q("155.148609 mm")),
    Sketcher.Constraint("DistanceX", 23, 2, 5, 3, Q("32.35857 mm")),
])
sketch2.setExpression("Constraints[65]", "Params.sketch2_diameter")
sketch2.setExpression("Constraints[66]", "Params.sketch2_width")
sketch2.setExpression("Constraints[67]", "Params.sketch2_height")
sketch2.setExpression("Constraints[70]", "Params.sketch2_length")
sketch2.setExpression("Constraints[71]", "Params.sketch2_length2")
pocket1 = body.newObject("PartDesign::Pocket", "Pocket")
pocket1.Profile = sketch2
pocket1.Type = "ThroughAll"

doc.recompute()
